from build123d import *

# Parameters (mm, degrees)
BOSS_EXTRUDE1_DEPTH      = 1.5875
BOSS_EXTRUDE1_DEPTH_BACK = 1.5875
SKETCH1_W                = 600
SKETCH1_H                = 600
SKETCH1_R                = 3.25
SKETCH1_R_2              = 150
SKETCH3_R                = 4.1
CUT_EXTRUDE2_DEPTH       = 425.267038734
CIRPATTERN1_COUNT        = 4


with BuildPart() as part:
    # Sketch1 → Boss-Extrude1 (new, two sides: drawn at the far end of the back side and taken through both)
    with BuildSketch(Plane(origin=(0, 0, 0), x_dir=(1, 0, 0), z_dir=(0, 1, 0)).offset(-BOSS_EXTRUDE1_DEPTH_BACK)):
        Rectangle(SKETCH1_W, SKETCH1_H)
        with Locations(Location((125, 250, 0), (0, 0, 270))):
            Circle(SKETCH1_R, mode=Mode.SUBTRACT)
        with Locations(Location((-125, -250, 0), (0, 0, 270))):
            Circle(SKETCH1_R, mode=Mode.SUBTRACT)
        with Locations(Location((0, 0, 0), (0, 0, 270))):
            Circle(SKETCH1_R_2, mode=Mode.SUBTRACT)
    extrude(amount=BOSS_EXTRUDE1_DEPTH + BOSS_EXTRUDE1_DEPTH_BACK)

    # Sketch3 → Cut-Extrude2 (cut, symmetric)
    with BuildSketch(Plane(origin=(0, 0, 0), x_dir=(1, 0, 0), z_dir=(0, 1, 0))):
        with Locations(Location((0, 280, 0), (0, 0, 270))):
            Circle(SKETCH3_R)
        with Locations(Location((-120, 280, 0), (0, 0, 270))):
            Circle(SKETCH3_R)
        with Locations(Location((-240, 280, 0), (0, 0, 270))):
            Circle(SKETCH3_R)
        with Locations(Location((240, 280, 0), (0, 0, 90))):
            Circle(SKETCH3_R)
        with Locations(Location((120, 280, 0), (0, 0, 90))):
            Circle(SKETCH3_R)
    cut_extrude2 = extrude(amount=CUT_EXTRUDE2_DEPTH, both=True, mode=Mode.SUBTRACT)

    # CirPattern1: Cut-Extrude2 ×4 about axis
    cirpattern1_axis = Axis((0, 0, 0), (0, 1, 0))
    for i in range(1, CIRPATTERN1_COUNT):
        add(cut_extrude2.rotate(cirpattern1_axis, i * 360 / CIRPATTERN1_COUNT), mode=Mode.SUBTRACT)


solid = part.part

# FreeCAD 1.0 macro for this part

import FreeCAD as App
import Part
import Sketcher

doc = App.newDocument("Part")
body = doc.addObject("PartDesign::Body", "Body")

# Sketch on XZ plane
sketch1 = body.newObject("Sketcher::SketchObject", "Sketch")
sketch1.AttachmentSupport = (doc.getObject("XZ_Plane"), [""])
sketch1.MapMode = "FlatFace"
sketch1.addGeometry([
    Part.LineSegment(App.Vector(-300, -300, 0), App.Vector(-300, 300, 0)),  # 0
    Part.LineSegment(App.Vector(-300, 300, 0), App.Vector(300, 300, 0)),  # 1
    Part.LineSegment(App.Vector(300, 300, 0), App.Vector(300, -300, 0)),  # 2
    Part.LineSegment(App.Vector(300, -300, 0), App.Vector(-300, -300, 0)),  # 3
    Part.Circle(App.Vector(-125, 250, 0), App.Vector(0, 0, 1), 3.2),  # 4
    Part.Circle(App.Vector(0, 0, 0), App.Vector(0, 0, 1), 150),  # 5
    Part.Circle(App.Vector(125, -250, 0), App.Vector(0, 0, 1), 3.2),  # 6
], False)
sketch1.addConstraint([
    Sketcher.Constraint("Coincident", 0, 2, 1, 1),
    Sketcher.Constraint("Coincident", 1, 2, 2, 1),
    Sketcher.Constraint("Coincident", 2, 2, 3, 1),
    Sketcher.Constraint("Coincident", 3, 2, 0, 1),
    Sketcher.Constraint("Vertical", 0),
    Sketcher.Constraint("Horizontal", 1),
    Sketcher.Constraint("Vertical", 2),
    Sketcher.Constraint("Horizontal", 3),
    Sketcher.Constraint("Coincident", 5, 3, -1, 1),
    Sketcher.Constraint("Equal", 4, 6),
    Sketcher.Constraint("Symmetric", 4, 3, 6, 3, -1, 1),
    Sketcher.Constraint("Symmetric", 0, 2, 2, 2, -1, 1),
    Sketcher.Constraint("Equal", 3, 0),
    Sketcher.Constraint("Diameter", 5, 300.0),
    Sketcher.Constraint("Diameter", 4, 6.5),
    Sketcher.Constraint("DistanceX", 1, 1, 1, 2, 600.0),
    Sketcher.Constraint("DistanceX", 4, 3, -1, 1, 125.0),
    Sketcher.Constraint("DistanceY", -1, 1, 4, 3, 250.0),
])
pad1 = body.newObject("PartDesign::Pad", "Pad")
pad1.Profile = sketch1
pad1.Type = "TwoLengths"
pad1.Length = 1.5875
pad1.Length2 = 1.5875
pad1.Reversed = True

# Sketch on XZ plane
sketch2 = body.newObject("Sketcher::SketchObject", "Sketch001")
sketch2.AttachmentSupport = (doc.getObject("XZ_Plane"), [""])
sketch2.MapMode = "FlatFace"
sketch2.addGeometry([
    Part.Circle(App.Vector(0, -280, 0), App.Vector(0, 0, 1), 4.1),  # 0
    Part.Circle(App.Vector(-120, -280, 0), App.Vector(0, 0, 1), 4.1),  # 1
    Part.Circle(App.Vector(-240, -280, 0), App.Vector(0, 0, 1), 4.1),  # 2
    Part.Circle(App.Vector(240, -280, 0), App.Vector(0, 0, 1), 4.1),  # 3
    Part.Circle(App.Vector(120, -280, 0), App.Vector(0, 0, 1), 4.1),  # 4
], False)
sketch2.addConstraint([
    Sketcher.Constraint("Equal", 0, 1),
    Sketcher.Constraint("Equal", 1, 2),
    Sketcher.Constraint("Equal", 2, 3),
    Sketcher.Constraint("Equal", 3, 4),
    Sketcher.Constraint("Symmetric", 2, 3, 3, 3, -2),
    Sketcher.Constraint("Symmetric", 1, 3, 4, 3, -2),
    Sketcher.Constraint("PointOnObject", 0, 3, -2),
    Sketcher.Constraint("Horizontal", 0, 3, 1, 3),
    Sketcher.Constraint("Horizontal", 1, 3, 2, 3),
    Sketcher.Constraint("Diameter", 0, 8.2),
    Sketcher.Constraint("DistanceY", 0, 3, -1, 1, 280.0),
    Sketcher.Constraint("DistanceX", 1, 3, -1, 1, 120.0),
    Sketcher.Constraint("DistanceX", 2, 3, -1, 1, 240.0),
])
pocket1 = body.newObject("PartDesign::Pocket", "Pocket")
pocket1.Profile = sketch2
pocket1.Length = 850.534077
pocket1.Midplane = True
doc.recompute()

polarpattern = body.newObject("PartDesign::PolarPattern", "PolarPattern")
polarpattern.Originals = [pocket1]
polarpattern.Axis = (doc.getObject("Y_Axis"), [""])
polarpattern.Angle = 360
polarpattern.Occurrences = 4
body.Tip = polarpattern

doc.recompute()
